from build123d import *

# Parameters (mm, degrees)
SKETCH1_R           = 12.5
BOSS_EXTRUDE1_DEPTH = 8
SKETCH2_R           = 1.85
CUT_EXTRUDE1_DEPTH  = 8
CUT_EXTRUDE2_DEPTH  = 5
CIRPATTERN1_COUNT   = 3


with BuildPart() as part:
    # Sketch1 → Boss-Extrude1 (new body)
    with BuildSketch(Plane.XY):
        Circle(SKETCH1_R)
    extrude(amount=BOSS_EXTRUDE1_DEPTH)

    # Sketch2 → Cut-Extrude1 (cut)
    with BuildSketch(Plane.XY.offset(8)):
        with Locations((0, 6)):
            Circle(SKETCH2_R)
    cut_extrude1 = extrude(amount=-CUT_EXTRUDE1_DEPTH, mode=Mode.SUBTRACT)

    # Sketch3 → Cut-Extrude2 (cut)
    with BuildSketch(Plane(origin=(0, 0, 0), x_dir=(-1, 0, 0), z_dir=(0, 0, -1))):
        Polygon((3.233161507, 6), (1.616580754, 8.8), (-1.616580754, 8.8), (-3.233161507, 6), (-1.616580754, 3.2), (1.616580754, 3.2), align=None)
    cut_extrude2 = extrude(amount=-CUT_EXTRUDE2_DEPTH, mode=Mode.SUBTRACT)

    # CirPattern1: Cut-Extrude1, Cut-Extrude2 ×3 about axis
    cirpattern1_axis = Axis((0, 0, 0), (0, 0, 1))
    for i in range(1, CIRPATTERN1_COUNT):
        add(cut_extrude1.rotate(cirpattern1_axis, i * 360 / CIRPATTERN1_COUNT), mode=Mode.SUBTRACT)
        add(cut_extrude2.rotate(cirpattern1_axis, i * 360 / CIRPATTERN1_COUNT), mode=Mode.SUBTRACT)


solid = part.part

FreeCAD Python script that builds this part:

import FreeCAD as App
import Part
import Sketcher
from FreeCAD import Vector
Q = App.Units.Quantity


def add_polygon(sketch, points):
    """Adds a closed chain of lines whose ends are joined by coincident constraints."""
    first, n = sketch.GeometryCount, len(points)
    for a, b in zip(points, points[1:] + points[:1]):
        sketch.addGeometry(Part.LineSegment(App.Vector(*a, 0), App.Vector(*b, 0)), False)
    for i in range(n):
        sketch.addConstraint(Sketcher.Constraint("Coincident", first + i, 2, first + (i + 1) % n, 1))

doc = App.newDocument("Part")
body = doc.addObject("PartDesign::Body", "Body")

# Sketch on XY plane
sketch1 = body.newObject("Sketcher::SketchObject", "Sketch")
sketch1.AttachmentSupport = (doc.getObject("XY_Plane"), [""])
sketch1.MapMode = "FlatFace"
sketch1.addGeometry(Part.Circle(Vector(0, 0, 0), Vector(0, 0, 1), 12), False)
sketch1.addConstraint(Sketcher.Constraint("Coincident", 0, 3, -1, 1))
sketch1.addConstraint(Sketcher.Constraint("Diameter", 0, 25.0))
pad1 = body.newObject("PartDesign::Pad", "Pad")
pad1.Profile = sketch1
pad1.Length = 8

# Sketch on XY plane
sketch2 = body.newObject("Sketcher::SketchObject", "Sketch001")
sketch2.AttachmentSupport = (doc.getObject("XY_Plane"), [""])
sketch2.MapMode = "FlatFace"
sketch2.AttachmentOffset = App.Placement(Vector(0, 0, 8), App.Rotation())
sketch2.addGeometry(Part.Circle(Vector(0, 6, 0), Vector(0, 0, 1), 1.9), False)
sketch2.addConstraint(Sketcher.Constraint("PointOnObject", 0, 3, -2))
sketch2.addConstraint(Sketcher.Constraint("Diameter", 0, 3.7))
sketch2.addConstraint(Sketcher.Constraint("DistanceY", -1, 1, 0, 3, 6.0))
pocket1 = body.newObject("PartDesign::Pocket", "Pocket")
pocket1.Profile = sketch2
pocket1.Length = 8

# Sketch on XY plane
sketch3 = body.newObject("Sketcher::SketchObject", "Sketch002")
sketch3.AttachmentSupport = (doc.getObject("XY_Plane"), [""])
sketch3.MapMode = "FlatFace"
add_polygon(sketch3, [(-3.2, 6), (-1.6, 8.8), (1.6, 8.8), (3.2, 6), (1.6, 3.2), (-1.6, 3.2)])  # lines 0-5
sketch3.addConstraint(Sketcher.Constraint("Horizontal", 1))
sketch3.addConstraint(Sketcher.Constraint("Horizontal", 4))
sketch3.addConstraint(Sketcher.Constraint("Symmetric", 2, 2, 5, 2, -2))
sketch3.addConstraint(Sketcher.Constraint("Parallel", 0, 3))
sketch3.addConstraint(Sketcher.Constraint("Parallel", 2, 5))
sketch3.addConstraint(Sketcher.Constraint("Vertical", 1, 2, 3, 2))
sketch3.addConstraint(Sketcher.Constraint("Vertical", 0, 2, 4, 2))
sketch3.addConstraint(Sketcher.Constraint("Angle", 0, Q("60 deg")))
sketch3.addConstraint(Sketcher.Constraint("DistanceY", -1, 1, 2, 2, 6.0))
sketch3.addConstraint(Sketcher.Constraint("DistanceY", -1, 1, 0, 2, 8.8))
sketch3.addConstraint(Sketcher.Constraint("DistanceX", 1, 1, 1, 2, 3.233162))
pocket2 = body.newObject("PartDesign::Pocket", "Pocket001")
pocket2.Profile = sketch3
pocket2.Length = 5
pocket2.Reversed = True
doc.recompute()

polarpattern = body.newObject("PartDesign::PolarPattern", "PolarPattern")
polarpattern.Originals = [pocket1, pocket2]
polarpattern.Axis = (doc.getObject("Z_Axis"), [""])
polarpattern.Angle = 360
polarpattern.Occurrences = 3
body.Tip = polarpattern

doc.recompute()
